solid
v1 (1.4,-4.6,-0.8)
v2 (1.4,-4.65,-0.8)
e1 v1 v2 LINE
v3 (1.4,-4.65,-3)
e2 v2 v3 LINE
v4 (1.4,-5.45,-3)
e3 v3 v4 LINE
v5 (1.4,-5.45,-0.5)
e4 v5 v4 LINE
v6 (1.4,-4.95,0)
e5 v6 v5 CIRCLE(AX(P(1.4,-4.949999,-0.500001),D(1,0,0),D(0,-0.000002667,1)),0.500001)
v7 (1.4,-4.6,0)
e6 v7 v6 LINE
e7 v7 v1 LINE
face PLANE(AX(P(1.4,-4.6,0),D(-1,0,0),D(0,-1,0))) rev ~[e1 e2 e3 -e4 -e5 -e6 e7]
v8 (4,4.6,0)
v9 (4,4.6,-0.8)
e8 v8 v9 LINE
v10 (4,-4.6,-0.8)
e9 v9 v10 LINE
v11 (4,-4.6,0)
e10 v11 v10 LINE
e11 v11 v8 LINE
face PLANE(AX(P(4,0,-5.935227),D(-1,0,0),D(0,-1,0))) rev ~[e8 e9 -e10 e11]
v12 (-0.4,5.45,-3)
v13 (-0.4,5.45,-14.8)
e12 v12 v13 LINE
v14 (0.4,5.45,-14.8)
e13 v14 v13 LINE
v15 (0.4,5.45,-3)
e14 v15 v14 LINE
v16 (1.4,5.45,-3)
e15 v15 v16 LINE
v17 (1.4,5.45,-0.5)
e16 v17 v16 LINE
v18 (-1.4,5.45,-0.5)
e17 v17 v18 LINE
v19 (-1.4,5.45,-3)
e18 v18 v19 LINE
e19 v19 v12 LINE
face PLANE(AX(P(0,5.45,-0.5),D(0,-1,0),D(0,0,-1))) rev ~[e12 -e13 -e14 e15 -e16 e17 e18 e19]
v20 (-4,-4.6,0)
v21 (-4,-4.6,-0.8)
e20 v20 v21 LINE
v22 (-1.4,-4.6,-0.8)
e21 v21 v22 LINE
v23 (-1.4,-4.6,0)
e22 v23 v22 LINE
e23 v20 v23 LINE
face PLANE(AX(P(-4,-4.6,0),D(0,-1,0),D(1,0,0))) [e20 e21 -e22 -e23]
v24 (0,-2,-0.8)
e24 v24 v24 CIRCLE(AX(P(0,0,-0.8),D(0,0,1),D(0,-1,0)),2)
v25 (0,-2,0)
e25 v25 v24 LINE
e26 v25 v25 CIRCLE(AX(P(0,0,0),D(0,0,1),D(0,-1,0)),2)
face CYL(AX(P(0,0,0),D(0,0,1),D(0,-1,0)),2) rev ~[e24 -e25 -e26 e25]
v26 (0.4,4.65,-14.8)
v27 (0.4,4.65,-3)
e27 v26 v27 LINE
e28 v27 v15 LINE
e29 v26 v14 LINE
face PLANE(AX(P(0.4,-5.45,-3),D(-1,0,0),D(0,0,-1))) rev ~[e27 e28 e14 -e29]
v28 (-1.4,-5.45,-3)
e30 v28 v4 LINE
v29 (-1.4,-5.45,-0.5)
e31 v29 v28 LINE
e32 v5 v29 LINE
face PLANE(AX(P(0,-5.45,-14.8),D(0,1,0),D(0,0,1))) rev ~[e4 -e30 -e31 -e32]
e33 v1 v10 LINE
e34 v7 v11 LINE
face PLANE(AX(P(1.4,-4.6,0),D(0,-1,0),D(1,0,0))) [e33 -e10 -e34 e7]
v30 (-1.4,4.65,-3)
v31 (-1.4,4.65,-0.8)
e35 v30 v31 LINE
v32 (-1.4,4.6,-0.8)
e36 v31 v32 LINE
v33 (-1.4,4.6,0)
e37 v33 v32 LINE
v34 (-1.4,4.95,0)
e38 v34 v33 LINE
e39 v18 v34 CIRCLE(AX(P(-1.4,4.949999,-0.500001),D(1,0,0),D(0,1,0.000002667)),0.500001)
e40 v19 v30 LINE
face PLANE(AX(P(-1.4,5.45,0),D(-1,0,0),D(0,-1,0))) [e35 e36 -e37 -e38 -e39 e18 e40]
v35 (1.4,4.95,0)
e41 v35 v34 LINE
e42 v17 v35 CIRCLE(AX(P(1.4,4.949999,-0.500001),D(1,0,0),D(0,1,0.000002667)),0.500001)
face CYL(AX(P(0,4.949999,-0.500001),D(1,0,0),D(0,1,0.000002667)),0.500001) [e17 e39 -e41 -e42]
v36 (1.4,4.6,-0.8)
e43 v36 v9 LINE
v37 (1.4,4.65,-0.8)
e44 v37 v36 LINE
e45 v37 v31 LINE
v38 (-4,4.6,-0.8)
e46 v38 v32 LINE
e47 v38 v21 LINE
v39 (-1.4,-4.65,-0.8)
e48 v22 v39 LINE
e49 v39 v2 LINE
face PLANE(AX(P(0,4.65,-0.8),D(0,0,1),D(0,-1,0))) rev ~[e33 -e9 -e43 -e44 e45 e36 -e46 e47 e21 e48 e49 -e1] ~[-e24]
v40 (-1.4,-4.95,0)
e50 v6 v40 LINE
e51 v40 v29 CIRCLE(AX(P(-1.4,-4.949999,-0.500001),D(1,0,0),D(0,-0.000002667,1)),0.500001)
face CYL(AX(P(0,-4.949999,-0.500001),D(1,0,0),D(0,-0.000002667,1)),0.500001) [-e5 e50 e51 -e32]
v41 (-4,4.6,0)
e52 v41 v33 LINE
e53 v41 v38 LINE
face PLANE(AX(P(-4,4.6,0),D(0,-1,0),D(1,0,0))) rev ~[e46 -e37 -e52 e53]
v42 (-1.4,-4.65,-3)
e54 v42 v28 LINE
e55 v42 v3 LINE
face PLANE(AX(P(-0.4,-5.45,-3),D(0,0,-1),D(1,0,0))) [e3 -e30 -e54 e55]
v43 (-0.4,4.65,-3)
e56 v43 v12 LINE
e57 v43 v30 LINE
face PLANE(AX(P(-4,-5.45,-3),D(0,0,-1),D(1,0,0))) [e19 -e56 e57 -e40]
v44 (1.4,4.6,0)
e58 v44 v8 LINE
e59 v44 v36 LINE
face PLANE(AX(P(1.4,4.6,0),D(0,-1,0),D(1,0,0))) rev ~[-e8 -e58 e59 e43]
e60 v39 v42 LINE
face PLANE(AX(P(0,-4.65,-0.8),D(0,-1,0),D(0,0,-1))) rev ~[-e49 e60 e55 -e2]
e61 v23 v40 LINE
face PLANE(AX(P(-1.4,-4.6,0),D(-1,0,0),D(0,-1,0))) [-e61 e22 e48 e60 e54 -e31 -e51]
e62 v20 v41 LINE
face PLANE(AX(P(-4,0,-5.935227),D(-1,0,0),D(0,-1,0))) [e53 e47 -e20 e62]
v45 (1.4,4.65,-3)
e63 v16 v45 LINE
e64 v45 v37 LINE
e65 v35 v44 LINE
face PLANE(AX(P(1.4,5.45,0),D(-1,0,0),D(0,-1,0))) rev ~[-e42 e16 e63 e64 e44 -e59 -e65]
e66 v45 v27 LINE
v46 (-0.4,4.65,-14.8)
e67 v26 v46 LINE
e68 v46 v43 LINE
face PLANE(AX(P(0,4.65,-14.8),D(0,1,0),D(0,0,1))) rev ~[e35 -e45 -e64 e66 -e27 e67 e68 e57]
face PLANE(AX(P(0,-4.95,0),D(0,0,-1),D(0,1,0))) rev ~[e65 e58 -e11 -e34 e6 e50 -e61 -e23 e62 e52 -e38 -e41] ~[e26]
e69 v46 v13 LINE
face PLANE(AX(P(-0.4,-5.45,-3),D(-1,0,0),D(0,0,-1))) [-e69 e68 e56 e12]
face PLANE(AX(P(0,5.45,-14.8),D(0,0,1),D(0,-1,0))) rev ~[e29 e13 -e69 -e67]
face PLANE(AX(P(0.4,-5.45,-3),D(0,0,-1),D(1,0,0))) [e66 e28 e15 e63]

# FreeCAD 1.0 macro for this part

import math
import FreeCAD as App
import Part
import Sketcher
Q = App.Units.Quantity


def add_polygon(sketch, points):
    """Adds a closed chain of lines whose ends are joined by coincident constraints."""
    first, n = sketch.GeometryCount, len(points)
    for a, b in zip(points, points[1:] + points[:1]):
        sketch.addGeometry(Part.LineSegment(App.Vector(*a, 0), App.Vector(*b, 0)), False)
    for i in range(n):
        sketch.addConstraint(Sketcher.Constraint("Coincident", first + i, 2, first + (i + 1) % n, 1))

doc = App.newDocument("Part")
params = doc.addObject("Spreadsheet::Sheet", "Params")
for row, (alias, value) in enumerate([
    ("sketch1_radius", "0.500001 mm"),
    ("sketch1_height", "14 mm"),
    ("sketch1_width", "0.8 mm"),
    ("sketch1_width2", "9.3 mm"),
    ("sketch1_height2", "14.3 mm"),
    ("pad1_length", "8 mm"),
    ("sketch2_diameter", "4 mm"),
    ("sketch2_width", "2.6 mm"),
    ("sketch2_height", "0.85 mm"),
    ("pocket1_length", "10 mm"),
    ("sketch3_width", "3.6 mm"),
    ("sketch3_height", "11.8 mm"),
    ("pocket2_length", "15 mm"),
    ("sketch4_width", "0.8 mm"),
    ("sketch4_height", "11.8 mm"),
    ("pocket3_length", "5 mm"),
], start=1):
    params.set(f"A{row}", alias)
    params.set(f"B{row}", "=" + value)
    params.setAlias(f"B{row}", alias)

body = doc.addObject("PartDesign::Body", "Body")

sketch1 = body.newObject("Sketcher::SketchObject", "Sketch")
sketch1.AttachmentSupport = (doc.getObject("YZ_Plane"), [""])
sketch1.MapMode = "FlatFace"
sketch1.addGeometry([
    Part.LineSegment(App.Vector(-5.5, -0.5, 0), App.Vector(-5.5, -14.8, 0)),
    Part.LineSegment(App.Vector(-5.5, -14.8, 0), App.Vector(-4.7, -14.8, 0)),
    Part.LineSegment(App.Vector(-4.7, -14.8, 0), App.Vector(-4.7, -0.8, 0)),
    Part.LineSegment(App.Vector(-4.7, -0.8, 0), App.Vector(4.7, -0.8, 0)),
    Part.LineSegment(App.Vector(4.7, -0.8, 0), App.Vector(4.7, -14.8, 0)),
    Part.LineSegment(App.Vector(4.7, -14.8, 0), App.Vector(5.5, -14.8, 0)),
    Part.LineSegment(App.Vector(5.5, -14.8, 0), App.Vector(5.5, -0.5, 0)),
    Part.ArcOfCircle(Part.Circle(App.Vector(4.9, -0.5, 0), App.Vector(0, 0, 1), 0.5), math.radians(0), math.radians(90)),
    Part.LineSegment(App.Vector(5, 0, 0), App.Vector(-5, 0, 0)),
    Part.ArcOfCircle(Part.Circle(App.Vector(-4.9, -0.5, 0), App.Vector(0, 0, 1), 0.5), math.radians(90), math.radians(180)),
], False)
sketch1.addConstraint([
    Sketcher.Constraint("Coincident", 0, 2, 1, 1),
    Sketcher.Constraint("Coincident", 1, 2, 2, 1),
    Sketcher.Constraint("Coincident", 2, 2, 3, 1),
    Sketcher.Constraint("Coincident", 3, 2, 4, 1),
    Sketcher.Constraint("Coincident", 4, 2, 5, 1),
    Sketcher.Constraint("Coincident", 5, 2, 6, 1),
    Sketcher.Constraint("Coincident", 6, 2, 7, 1),
    Sketcher.Constraint("Coincident", 7, 2, 8, 1),
    Sketcher.Constraint("Coincident", 8, 2, 9, 1),
    Sketcher.Constraint("Coincident", 9, 2, 0, 1),
    Sketcher.Constraint("Vertical", 0),
    Sketcher.Constraint("Horizontal", 1),
    Sketcher.Constraint("Vertical", 2),
    Sketcher.Constraint("Horizontal", 3),
    Sketcher.Constraint("Vertical", 4),
    Sketcher.Constraint("Horizontal", 5),
    Sketcher.Constraint("Vertical", 6),
    Sketcher.Constraint("Horizontal", 8),
    Sketcher.Constraint("Equal", 7, 9),
    Sketcher.Constraint("Symmetric", 7, 2, 8, 2, -1, 1),
    Sketcher.Constraint("Symmetric", 1, 2, 4, 2, -2),
    Sketcher.Constraint("Symmetric", 6, 2, 9, 2, -2),
    Sketcher.Constraint("Horizontal", 9, 3, 6, 2),
    Sketcher.Constraint("Vertical", 9, 3, 8, 2),
    Sketcher.Constraint("Radius", 7, Q("0.500001 mm")),
    Sketcher.Constraint("DistanceY", 2, 1, 2, 2, Q("14 mm")),
    Sketcher.Constraint("DistanceX", 1, 1, 1, 2, Q("0.8 mm")),
    Sketcher.Constraint("DistanceX", 3, 1, 3, 2, Q("9.3 mm")),
    Sketcher.Constraint("DistanceY", 0, 2, 0, 1, Q("14.3 mm")),
])
sketch1.setExpression("Constraints[24]", "Params.sketch1_radius")
sketch1.setExpression("Constraints[25]", "Params.sketch1_height")
sketch1.setExpression("Constraints[26]", "Params.sketch1_width")
sketch1.setExpression("Constraints[27]", "Params.sketch1_width2")
sketch1.setExpression("Constraints[28]", "Params.sketch1_height2")
pad1 = body.newObject("PartDesign::Pad", "Pad")
pad1.Profile = sketch1
pad1.setExpression("Length", "Params.pad1_length")
pad1.Midplane = True

sketch2 = body.newObject("Sketcher::SketchObject", "Sketch001")
sketch2.AttachmentSupport = (doc.getObject("XY_Plane"), [""])
sketch2.MapMode = "FlatFace"
sketch2.addGeometry(Part.Circle(App.Vector(0, 0, 0), App.Vector(0, 0, 1), 2), False)
add_polygon(sketch2, [(4, 5.5), (1.4, 5.5), (1.4, 4.6), (4, 4.6)])
add_polygon(sketch2, [(-1.4, 5.5), (-4, 5.5), (-4, 4.6), (-1.4, 4.6)])
add_polygon(sketch2, [(4, -4.6), (1.4, -4.6), (1.4, -5.5), (4, -5.5)])
add_polygon(sketch2, [(-1.4, -4.6), (-4, -4.6), (-4, -5.5), (-1.4, -5.5)])
sketch2.addConstraint([
    Sketcher.Constraint("Horizontal", 1),
    Sketcher.Constraint("Vertical", 2),
    Sketcher.Constraint("Horizontal", 3),
    Sketcher.Constraint("Vertical", 4),
    Sketcher.Constraint("Horizontal", 5),
    Sketcher.Constraint("Vertical", 6),
    Sketcher.Constraint("Horizontal", 7),
    Sketcher.Constraint("Vertical", 8),
    Sketcher.Constraint("Horizontal", 9),
    Sketcher.Constraint("Vertical", 10),
    Sketcher.Constraint("Horizontal", 11),
    Sketcher.Constraint("Vertical", 12),
    Sketcher.Constraint("Horizontal", 13),
    Sketcher.Constraint("Vertical", 14),
    Sketcher.Constraint("Horizontal", 15),
    Sketcher.Constraint("Vertical", 16),
    Sketcher.Constraint("Coincident", 0, 3, -1, 1),
    Sketcher.Constraint("Symmetric", 7, 2, 9, 2, -1, 1),
    Sketcher.Constraint("Symmetric", 5, 2, 11, 2, -1, 1),
    Sketcher.Constraint("Symmetric", 3, 2, 13, 2, -1, 1),
    Sketcher.Constraint("Symmetric", 1, 2, 15, 2, -1, 1),
    Sketcher.Constraint("Symmetric", 4, 2, 5, 2, -2),
    Sketcher.Constraint("Symmetric", 2, 2, 7, 2, -2),
    Sketcher.Constraint("Diameter", 0, Q("4 mm")),
    Sketcher.Constraint("DistanceX", 1, 2, 1, 1, Q("2.6 mm")),
    Sketcher.Constraint("DistanceX", -1, 1, 3, 2, Q("4 mm")),
    Sketcher.Constraint("DistanceY", 2, 2, 2, 1, Q("0.85 mm")),
    Sketcher.Constraint("DistanceY", -1, 1, 2, 2, Q("4.6 mm")),
])
sketch2.setExpression("Constraints[39]", "Params.sketch2_diameter")
sketch2.setExpression("Constraints[40]", "Params.sketch2_width")
sketch2.setExpression("Constraints[42]", "Params.sketch2_height")
pocket1 = body.newObject("PartDesign::Pocket", "Pocket")
pocket1.Profile = sketch2
pocket1.setExpression("Length", "Params.pocket1_length")

sketch3 = body.newObject("Sketcher::SketchObject", "Sketch002")
sketch3.AttachmentSupport = (doc.getObject("XZ_Plane"), [""])
sketch3.MapMode = "FlatFace"
sketch3.AttachmentOffset = App.Placement(App.Vector(0, 0, 5.45), App.Rotation())
add_polygon(sketch3, [(4, -3), (0.4, -3), (0.4, -14.8), (4, -14.8)])
add_polygon(sketch3, [(-0.4, -3), (-4, -3), (-4, -14.8), (-0.4, -14.8)])
sketch3.addConstraint([
    Sketcher.Constraint("Horizontal", 0),
    Sketcher.Constraint("Vertical", 1),
    Sketcher.Constraint("Horizontal", 2),
    Sketcher.Constraint("Vertical", 3),
    Sketcher.Constraint("Horizontal", 4),
    Sketcher.Constraint("Vertical", 5),
    Sketcher.Constraint("Horizontal", 6),
    Sketcher.Constraint("Vertical", 7),
    Sketcher.Constraint("Symmetric", 3, 2, 4, 2, -2),
    Sketcher.Constraint("Symmetric", 1, 2, 6, 2, -2),
    Sketcher.Constraint("DistanceX", 0, 2, 0, 1, Q("3.6 mm")),
    Sketcher.Constraint("DistanceY", 1, 2, 1, 1, Q("11.8 mm")),
    Sketcher.Constraint("DistanceY", 0, 2, -1, 1, Q("3 mm")),
    Sketcher.Constraint("DistanceX", -1, 1, 2, 2, Q("4 mm")),
])
sketch3.setExpression("Constraints[18]", "Params.sketch3_width")
sketch3.setExpression("Constraints[19]", "Params.sketch3_height")
pocket2 = body.newObject("PartDesign::Pocket", "Pocket001")
pocket2.Profile = sketch3
pocket2.setExpression("Length", "Params.pocket2_length")

sketch4 = body.newObject("Sketcher::SketchObject", "Sketch003")
sketch4.AttachmentSupport = (doc.getObject("XZ_Plane"), [""])
sketch4.MapMode = "FlatFace"
sketch4.AttachmentOffset = App.Placement(App.Vector(0, 0, 5.45), App.Rotation())
add_polygon(sketch4, [(0.4, -3), (-0.4, -3), (-0.4, -14.8), (0.4, -14.8)])
sketch4.addConstraint([
    Sketcher.Constraint("Horizontal", 0),
    Sketcher.Constraint("Vertical", 1),
    Sketcher.Constraint("Horizontal", 2),
    Sketcher.Constraint("Vertical", 3),
    Sketcher.Constraint("DistanceX", 0, 2, 0, 1, Q("0.8 mm")),
    Sketcher.Constraint("DistanceY", 1, 2, 1, 1, Q("11.8 mm")),
    Sketcher.Constraint("DistanceY", 0, 2, -1, 1, Q("3 mm")),
    Sketcher.Constraint("DistanceX", 0, 2, -1, 1, Q("0.4 mm")),
])
sketch4.setExpression("Constraints[8]", "Params.sketch4_width")
sketch4.setExpression("Constraints[9]", "Params.sketch4_height")
pocket3 = body.newObject("PartDesign::Pocket", "Pocket002")
pocket3.Profile = sketch4
pocket3.setExpression("Length", "Params.pocket3_length")

doc.recompute()
